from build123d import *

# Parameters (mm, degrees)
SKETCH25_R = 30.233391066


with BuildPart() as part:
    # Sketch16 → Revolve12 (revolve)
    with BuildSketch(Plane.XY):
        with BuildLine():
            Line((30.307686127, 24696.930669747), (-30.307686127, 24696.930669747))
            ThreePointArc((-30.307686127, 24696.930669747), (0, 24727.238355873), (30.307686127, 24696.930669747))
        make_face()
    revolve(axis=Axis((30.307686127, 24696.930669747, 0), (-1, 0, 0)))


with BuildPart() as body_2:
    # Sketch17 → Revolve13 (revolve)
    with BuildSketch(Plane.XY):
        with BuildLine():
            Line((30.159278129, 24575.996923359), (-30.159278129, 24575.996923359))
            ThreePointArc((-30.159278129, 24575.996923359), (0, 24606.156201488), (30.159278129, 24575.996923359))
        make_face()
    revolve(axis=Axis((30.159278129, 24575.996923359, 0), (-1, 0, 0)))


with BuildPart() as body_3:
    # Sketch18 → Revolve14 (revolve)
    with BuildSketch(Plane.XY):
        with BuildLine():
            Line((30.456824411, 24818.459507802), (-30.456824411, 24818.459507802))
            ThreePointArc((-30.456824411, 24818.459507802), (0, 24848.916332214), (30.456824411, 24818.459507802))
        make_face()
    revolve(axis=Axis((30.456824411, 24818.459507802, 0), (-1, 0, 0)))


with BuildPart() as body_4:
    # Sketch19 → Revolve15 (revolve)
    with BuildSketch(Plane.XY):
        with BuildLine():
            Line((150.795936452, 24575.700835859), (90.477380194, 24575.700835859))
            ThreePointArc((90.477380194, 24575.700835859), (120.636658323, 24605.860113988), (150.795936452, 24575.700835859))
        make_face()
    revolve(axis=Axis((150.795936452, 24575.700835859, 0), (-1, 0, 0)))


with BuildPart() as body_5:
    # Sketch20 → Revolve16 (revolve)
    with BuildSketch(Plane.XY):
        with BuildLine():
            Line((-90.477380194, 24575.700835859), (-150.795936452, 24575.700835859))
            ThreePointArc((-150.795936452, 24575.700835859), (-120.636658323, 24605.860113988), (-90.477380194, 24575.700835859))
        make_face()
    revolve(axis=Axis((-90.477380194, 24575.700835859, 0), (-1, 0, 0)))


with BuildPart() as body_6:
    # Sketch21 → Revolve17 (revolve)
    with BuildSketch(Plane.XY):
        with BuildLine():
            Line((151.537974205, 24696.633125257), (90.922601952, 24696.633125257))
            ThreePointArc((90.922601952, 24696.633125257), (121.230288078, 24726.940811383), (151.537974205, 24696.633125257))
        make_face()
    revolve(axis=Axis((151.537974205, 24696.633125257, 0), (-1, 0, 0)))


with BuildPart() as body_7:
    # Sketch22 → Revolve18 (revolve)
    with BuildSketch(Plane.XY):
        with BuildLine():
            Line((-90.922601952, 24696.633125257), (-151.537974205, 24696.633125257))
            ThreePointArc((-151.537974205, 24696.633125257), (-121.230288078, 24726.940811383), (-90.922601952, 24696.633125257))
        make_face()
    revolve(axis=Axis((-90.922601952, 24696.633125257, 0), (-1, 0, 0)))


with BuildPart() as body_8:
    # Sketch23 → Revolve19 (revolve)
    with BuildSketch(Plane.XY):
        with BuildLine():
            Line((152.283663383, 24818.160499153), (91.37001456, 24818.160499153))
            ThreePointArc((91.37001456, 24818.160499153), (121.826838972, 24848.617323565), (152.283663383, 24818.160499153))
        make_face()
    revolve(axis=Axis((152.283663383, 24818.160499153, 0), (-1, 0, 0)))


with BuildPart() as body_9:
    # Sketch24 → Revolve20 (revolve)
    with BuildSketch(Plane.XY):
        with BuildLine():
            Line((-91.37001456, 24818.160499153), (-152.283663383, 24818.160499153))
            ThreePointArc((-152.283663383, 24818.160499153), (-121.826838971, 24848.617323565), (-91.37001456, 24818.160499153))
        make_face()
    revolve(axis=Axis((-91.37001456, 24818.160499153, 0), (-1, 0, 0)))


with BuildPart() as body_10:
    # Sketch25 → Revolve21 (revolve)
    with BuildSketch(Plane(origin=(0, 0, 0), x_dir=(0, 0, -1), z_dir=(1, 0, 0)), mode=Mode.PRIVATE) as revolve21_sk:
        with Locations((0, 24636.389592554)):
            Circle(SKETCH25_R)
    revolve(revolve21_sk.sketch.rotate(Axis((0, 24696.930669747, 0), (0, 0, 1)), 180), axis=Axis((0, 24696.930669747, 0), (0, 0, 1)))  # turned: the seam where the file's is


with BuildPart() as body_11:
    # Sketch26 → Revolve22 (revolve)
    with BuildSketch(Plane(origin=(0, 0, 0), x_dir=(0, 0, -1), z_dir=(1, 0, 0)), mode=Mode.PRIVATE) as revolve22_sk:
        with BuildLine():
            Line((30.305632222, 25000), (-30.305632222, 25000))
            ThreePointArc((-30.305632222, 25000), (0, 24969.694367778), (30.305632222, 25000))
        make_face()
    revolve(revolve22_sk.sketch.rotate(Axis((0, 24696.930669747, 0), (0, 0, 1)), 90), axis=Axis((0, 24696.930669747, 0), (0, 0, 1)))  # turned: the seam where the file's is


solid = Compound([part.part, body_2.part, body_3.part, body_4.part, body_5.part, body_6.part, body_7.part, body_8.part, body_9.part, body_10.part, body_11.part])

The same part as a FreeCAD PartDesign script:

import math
import FreeCAD as App
import Part
import Sketcher
from FreeCAD import Vector
Q = App.Units.Quantity

doc = App.newDocument("Part")
body = doc.addObject("PartDesign::Body", "Body")

# Sketch on XY plane
sketch1 = doc.addObject("Sketcher::SketchObject", "Sketch")
body.addObject(sketch1)
sketch1.AttachmentSupport = (doc.XY_Plane, [""])
sketch1.MapMode = "FlatFace"
sketch1.addGeometry([
    Part.LineSegment(Vector(-30, 24697, 0), Vector(30, 24697, 0)),
    Part.ArcOfCircle(Part.Circle(Vector(0, 24697, 0), Vector(0, 0, 1), 30), math.radians(0), math.radians(180)),
], False)
sketch1.addGeometry(Part.LineSegment(Vector(30, 24697, 0), Vector(-30, 24697, 0)), True)  # axis
sketch1.addConstraint([
    Sketcher.Constraint("Coincident", 0, 1, 1, 2),
    Sketcher.Constraint("Coincident", 1, 1, 0, 2),
    Sketcher.Constraint("Horizontal", 0),
    Sketcher.Constraint("Horizontal", 2),
    Sketcher.Constraint("Coincident", 2, 1, 1, 1),
    Sketcher.Constraint("PointOnObject", 1, 3, -2),
    Sketcher.Constraint("Horizontal", 1, 3, 0, 1),
    Sketcher.Constraint("Equal", 0, 2),
    Sketcher.Constraint("Radius", 1, Q("30.307686 mm")),
    Sketcher.Constraint("DistanceY", -1, 1, 1, 3, Q("24696.93067 mm")),
])
revolution = doc.addObject("PartDesign::Revolution", "Revolution")
body.addObject(revolution)
revolution.Profile = sketch1
revolution.ReferenceAxis = (sketch1, ["Axis0"])
revolution.Angle = 360
body2 = doc.addObject("PartDesign::Body", "Body001")

# Sketch on XY plane
sketch2 = doc.addObject("Sketcher::SketchObject", "Sketch001")
body2.addObject(sketch2)
sketch2.AttachmentSupport = (doc.getObject("XY_Plane001"), [""])
sketch2.MapMode = "FlatFace"
sketch2.addGeometry([
    Part.LineSegment(Vector(-30, 24576, 0), Vector(30, 24576, 0)),
    Part.ArcOfCircle(Part.Circle(Vector(0, 24576, 0), Vector(0, 0, 1), 30), math.radians(0), math.radians(180)),
], False)
sketch2.addGeometry(Part.LineSegment(Vector(30, 24576, 0), Vector(-30, 24576, 0)), True)  # axis
sketch2.addConstraint([
    Sketcher.Constraint("Coincident", 0, 1, 1, 2),
    Sketcher.Constraint("Coincident", 1, 1, 0, 2),
    Sketcher.Constraint("Horizontal", 0),
    Sketcher.Constraint("Horizontal", 2),
    Sketcher.Constraint("Coincident", 2, 1, 1, 1),
    Sketcher.Constraint("PointOnObject", 1, 3, -2),
    Sketcher.Constraint("Horizontal", 1, 3, 0, 1),
    Sketcher.Constraint("Equal", 0, 2),
    Sketcher.Constraint("Radius", 1, Q("30.159278 mm")),
    Sketcher.Constraint("DistanceY", -1, 1, 1, 3, Q("24575.996923 mm")),
])
revolution2 = doc.addObject("PartDesign::Revolution", "Revolution001")
body2.addObject(revolution2)
revolution2.Profile = sketch2
revolution2.ReferenceAxis = (sketch2, ["Axis0"])
revolution2.Angle = 360
body3 = doc.addObject("PartDesign::Body", "Body002")

# Sketch on XY plane
sketch3 = doc.addObject("Sketcher::SketchObject", "Sketch002")
body3.addObject(sketch3)
sketch3.AttachmentSupport = (doc.getObject("XY_Plane002"), [""])
sketch3.MapMode = "FlatFace"
sketch3.addGeometry([
    Part.LineSegment(Vector(-30, 24818, 0), Vector(30, 24818, 0)),
    Part.ArcOfCircle(Part.Circle(Vector(0, 24818, 0), Vector(0, 0, 1), 30), math.radians(0), math.radians(180)),
], False)
sketch3.addGeometry(Part.LineSegment(Vector(30, 24818, 0), Vector(-30, 24818, 0)), True)  # axis
sketch3.addConstraint([
    Sketcher.Constraint("Coincident", 0, 1, 1, 2),
    Sketcher.Constraint("Coincident", 1, 1, 0, 2),
    Sketcher.Constraint("Horizontal", 0),
    Sketcher.Constraint("Horizontal", 2),
    Sketcher.Constraint("Coincident", 2, 1, 1, 1),
    Sketcher.Constraint("PointOnObject", 1, 3, -2),
    Sketcher.Constraint("Horizontal", 1, 3, 0, 1),
    Sketcher.Constraint("Equal", 0, 2),
    Sketcher.Constraint("Radius", 1, Q("30.456824 mm")),
    Sketcher.Constraint("DistanceY", -1, 1, 1, 3, Q("24818.459508 mm")),
])
revolution3 = doc.addObject("PartDesign::Revolution", "Revolution002")
body3.addObject(revolution3)
revolution3.Profile = sketch3
revolution3.ReferenceAxis = (sketch3, ["Axis0"])
revolution3.Angle = 360
body4 = doc.addObject("PartDesign::Body", "Body003")

# Sketch on XY plane
sketch4 = doc.addObject("Sketcher::SketchObject", "Sketch003")
body4.addObject(sketch4)
sketch4.AttachmentSupport = (doc.getObject("XY_Plane003"), [""])
sketch4.MapMode = "FlatFace"
sketch4.addGeometry([
    Part.LineSegment(Vector(90, 24576, 0), Vector(151, 24576, 0)),
    Part.ArcOfCircle(Part.Circle(Vector(121, 24576, 0), Vector(0, 0, 1), 30), math.radians(0), math.radians(180)),
], False)
sketch4.addGeometry(Part.LineSegment(Vector(151, 24576, 0), Vector(90, 24576, 0)), True)  # axis
sketch4.addConstraint([
    Sketcher.Constraint("Coincident", 0, 1, 1, 2),
    Sketcher.Constraint("Coincident", 1, 1, 0, 2),
    Sketcher.Constraint("Horizontal", 0),
    Sketcher.Constraint("Horizontal", 2),
    Sketcher.Constraint("Coincident", 2, 1, 1, 1),
    Sketcher.Constraint("Horizontal", 1, 3, 0, 1),
    Sketcher.Constraint("Equal", 0, 2),
    Sketcher.Constraint("Radius", 1, Q("30.159278 mm")),
    Sketcher.Constraint("DistanceX", -1, 1, 1, 3, Q("120.636658 mm")),
    Sketcher.Constraint("DistanceY", -1, 1, 1, 3, Q("24575.700836 mm")),
])
revolution4 = doc.addObject("PartDesign::Revolution", "Revolution003")
body4.addObject(revolution4)
revolution4.Profile = sketch4
revolution4.ReferenceAxis = (sketch4, ["Axis0"])
revolution4.Angle = 360
body5 = doc.addObject("PartDesign::Body", "Body004")

# Sketch on XY plane
sketch5 = doc.addObject("Sketcher::SketchObject", "Sketch004")
body5.addObject(sketch5)
sketch5.AttachmentSupport = (doc.getObject("XY_Plane004"), [""])
sketch5.MapMode = "FlatFace"
sketch5.addGeometry([
    Part.LineSegment(Vector(-151, 24576, 0), Vector(-90, 24576, 0)),
    Part.ArcOfCircle(Part.Circle(Vector(-121, 24576, 0), Vector(0, 0, 1), 30), math.radians(0), math.radians(180)),
], False)
sketch5.addGeometry(Part.LineSegment(Vector(-90, 24576, 0), Vector(-151, 24576, 0)), True)  # axis
sketch5.addConstraint([
    Sketcher.Constraint("Coincident", 0, 1, 1, 2),
    Sketcher.Constraint("Coincident", 1, 1, 0, 2),
    Sketcher.Constraint("Horizontal", 0),
    Sketcher.Constraint("Horizontal", 2),
    Sketcher.Constraint("Coincident", 2, 1, 1, 1),
    Sketcher.Constraint("Horizontal", 1, 3, 0, 1),
    Sketcher.Constraint("Equal", 0, 2),
    Sketcher.Constraint("Radius", 1, Q("30.159278 mm")),
    Sketcher.Constraint("DistanceX", 1, 3, -1, 1, Q("120.636658 mm")),
    Sketcher.Constraint("DistanceY", -1, 1, 1, 3, Q("24575.700836 mm")),
])
revolution5 = doc.addObject("PartDesign::Revolution", "Revolution004")
body5.addObject(revolution5)
revolution5.Profile = sketch5
revolution5.ReferenceAxis = (sketch5, ["Axis0"])
revolution5.Angle = 360
body6 = doc.addObject("PartDesign::Body", "Body005")

# Sketch on XY plane
sketch6 = doc.addObject("Sketcher::SketchObject", "Sketch005")
body6.addObject(sketch6)
sketch6.AttachmentSupport = (doc.getObject("XY_Plane005"), [""])
sketch6.MapMode = "FlatFace"
sketch6.addGeometry([
    Part.LineSegment(Vector(91, 24697, 0), Vector(152, 24697, 0)),
    Part.ArcOfCircle(Part.Circle(Vector(121, 24697, 0), Vector(0, 0, 1), 30), math.radians(0), math.radians(180)),
], False)
sketch6.addGeometry(Part.LineSegment(Vector(152, 24697, 0), Vector(91, 24697, 0)), True)  # axis
sketch6.addConstraint([
    Sketcher.Constraint("Coincident", 0, 1, 1, 2),
    Sketcher.Constraint("Coincident", 1, 1, 0, 2),
    Sketcher.Constraint("Horizontal", 0),
    Sketcher.Constraint("Horizontal", 2),
    Sketcher.Constraint("Coincident", 2, 1, 1, 1),
    Sketcher.Constraint("Horizontal", 1, 3, 0, 1),
    Sketcher.Constraint("Equal", 0, 2),
    Sketcher.Constraint("Radius", 1, Q("30.307686 mm")),
    Sketcher.Constraint("DistanceX", -1, 1, 0, 1, Q("90.922602 mm")),
    Sketcher.Constraint("DistanceY", -1, 1, 1, 3, Q("24696.633125 mm")),
])
revolution6 = doc.addObject("PartDesign::Revolution", "Revolution005")
body6.addObject(revolution6)
revolution6.Profile = sketch6
revolution6.ReferenceAxis = (sketch6, ["Axis0"])
revolution6.Angle = 360
body7 = doc.addObject("PartDesign::Body", "Body006")

# Sketch on XY plane
sketch7 = doc.addObject("Sketcher::SketchObject", "Sketch006")
body7.addObject(sketch7)
sketch7.AttachmentSupport = (doc.getObject("XY_Plane006"), [""])
sketch7.MapMode = "FlatFace"
sketch7.addGeometry([
    Part.LineSegment(Vector(-152, 24697, 0), Vector(-91, 24697, 0)),
    Part.ArcOfCircle(Part.Circle(Vector(-121, 24697, 0), Vector(0, 0, 1), 30), math.radians(0), math.radians(180)),
], False)
sketch7.addGeometry(Part.LineSegment(Vector(-91, 24697, 0), Vector(-152, 24697, 0)), True)  # axis
sketch7.addConstraint([
    Sketcher.Constraint("Coincident", 0, 1, 1, 2),
    Sketcher.Constraint("Coincident", 1, 1, 0, 2),
    Sketcher.Constraint("Horizontal", 0),
    Sketcher.Constraint("Horizontal", 2),
    Sketcher.Constraint("Coincident", 2, 1, 1, 1),
    Sketcher.Constraint("Horizontal", 1, 3, 0, 1),
    Sketcher.Constraint("Equal", 0, 2),
    Sketcher.Constraint("Radius", 1, Q("30.307686 mm")),
    Sketcher.Constraint("DistanceX", 1, 1, -1, 1, Q("90.922602 mm")),
    Sketcher.Constraint("DistanceY", -1, 1, 1, 3, Q("24696.633125 mm")),
])
revolution7 = doc.addObject("PartDesign::Revolution", "Revolution006")
body7.addObject(revolution7)
revolution7.Profile = sketch7
revolution7.ReferenceAxis = (sketch7, ["Axis0"])
revolution7.Angle = 360
body8 = doc.addObject("PartDesign::Body", "Body007")

# Sketch on XY plane
sketch8 = doc.addObject("Sketcher::SketchObject", "Sketch007")
body8.addObject(sketch8)
sketch8.AttachmentSupport = (doc.getObject("XY_Plane007"), [""])
sketch8.MapMode = "FlatFace"
sketch8.addGeometry([
    Part.LineSegment(Vector(91, 24818, 0), Vector(152, 24818, 0)),
    Part.ArcOfCircle(Part.Circle(Vector(122, 24818, 0), Vector(0, 0, 1), 30), math.radians(0), math.radians(180)),
], False)
sketch8.addGeometry(Part.LineSegment(Vector(152, 24818, 0), Vector(91, 24818, 0)), True)  # axis
sketch8.addConstraint([
    Sketcher.Constraint("Coincident", 0, 1, 1, 2),
    Sketcher.Constraint("Coincident", 1, 1, 0, 2),
    Sketcher.Constraint("Horizontal", 0),
    Sketcher.Constraint("Horizontal", 2),
    Sketcher.Constraint("Coincident", 2, 1, 1, 1),
    Sketcher.Constraint("Horizontal", 1, 3, 0, 1),
    Sketcher.Constraint("Equal", 0, 2),
    Sketcher.Constraint("Radius", 1, Q("30.456824 mm")),
    Sketcher.Constraint("DistanceY", -1, 1, 1, 3, Q("24818.160499 mm")),
    Sketcher.Constraint("DistanceX", -1, 1, 1, 3, Q("121.826839 mm")),
])
revolution8 = doc.addObject("PartDesign::Revolution", "Revolution007")
body8.addObject(revolution8)
revolution8.Profile = sketch8
revolution8.ReferenceAxis = (sketch8, ["Axis0"])
revolution8.Angle = 360
body9 = doc.addObject("PartDesign::Body", "Body008")

# Sketch on XY plane
sketch9 = doc.addObject("Sketcher::SketchObject", "Sketch008")
body9.addObject(sketch9)
sketch9.AttachmentSupport = (doc.getObject("XY_Plane008"), [""])
sketch9.MapMode = "FlatFace"
sketch9.addGeometry([
    Part.LineSegment(Vector(-152, 24818, 0), Vector(-91, 24818, 0)),
    Part.ArcOfCircle(Part.Circle(Vector(-122, 24818, 0), Vector(0, 0, 1), 30), math.radians(0), math.radians(180)),
], False)
sketch9.addGeometry(Part.LineSegment(Vector(-91, 24818, 0), Vector(-152, 24818, 0)), True)  # axis
sketch9.addConstraint([
    Sketcher.Constraint("Coincident", 0, 1, 1, 2),
    Sketcher.Constraint("Coincident", 1, 1, 0, 2),
    Sketcher.Constraint("Horizontal", 0),
    Sketcher.Constraint("Horizontal", 2),
    Sketcher.Constraint("Coincident", 2, 1, 1, 1),
    Sketcher.Constraint("Horizontal", 1, 3, 0, 1),
    Sketcher.Constraint("Equal", 0, 2),
    Sketcher.Constraint("Radius", 1, Q("30.456824 mm")),
    Sketcher.Constraint("DistanceY", -1, 1, 1, 3, Q("24818.160499 mm")),
    Sketcher.Constraint("DistanceX", 1, 3, -1, 1, Q("121.826839 mm")),
])
revolution9 = doc.addObject("PartDesign::Revolution", "Revolution008")
body9.addObject(revolution9)
revolution9.Profile = sketch9
revolution9.ReferenceAxis = (sketch9, ["Axis0"])
revolution9.Angle = 360
body10 = doc.addObject("PartDesign::Body", "Body009")

# Sketch on YZ plane
sketch10 = doc.addObject("Sketcher::SketchObject", "Sketch009")
body10.addObject(sketch10)
sketch10.AttachmentSupport = (doc.getObject("YZ_Plane009"), [""])
sketch10.MapMode = "FlatFace"
sketch10.addGeometry(Part.Circle(Vector(24636, 0, 0), Vector(0, 0, 1), 30), False)
sketch10.addGeometry(Part.LineSegment(Vector(24697, 0, 0), Vector(24697, 10, 0)), True)  # axis
sketch10.addConstraint([
    Sketcher.Constraint("Vertical", 1),
    Sketcher.Constraint("PointOnObject", 0, 3, -1),
    Sketcher.Constraint("PointOnObject", 1, 1, -1),
    Sketcher.Constraint("DistanceY", 1, 1, 1, 2, Q("10 mm")),
    Sketcher.Constraint("Diameter", 0, Q("60.466782 mm")),
    Sketcher.Constraint("DistanceX", -1, 1, 1, 1, Q("24696.93067 mm")),
    Sketcher.Constraint("DistanceX", -1, 1, 0, 3, Q("24636.389593 mm")),
])
revolution10 = doc.addObject("PartDesign::Revolution", "Revolution009")
body10.addObject(revolution10)
revolution10.Profile = sketch10
revolution10.ReferenceAxis = (sketch10, ["Axis0"])
revolution10.Angle = 360
body11 = doc.addObject("PartDesign::Body", "Body010")

# Sketch on YZ plane
sketch11 = doc.addObject("Sketcher::SketchObject", "Sketch010")
body11.addObject(sketch11)
sketch11.AttachmentSupport = (doc.getObject("YZ_Plane010"), [""])
sketch11.MapMode = "FlatFace"
sketch11.addGeometry([
    Part.LineSegment(Vector(25000, -30, 0), Vector(25000, 30, 0)),
    Part.ArcOfCircle(Part.Circle(Vector(25000, 0, 0), Vector(0, 0, 1), 30), math.radians(90), math.radians(270)),
], False)
sketch11.addGeometry(Part.LineSegment(Vector(24697, -30, 0), Vector(24697, 30, 0)), True)  # axis
sketch11.addConstraint([
    Sketcher.Constraint("Coincident", 0, 1, 1, 2),
    Sketcher.Constraint("Coincident", 1, 1, 0, 2),
    Sketcher.Constraint("Vertical", 0),
    Sketcher.Constraint("Vertical", 2),
    Sketcher.Constraint("PointOnObject", 1, 3, -1),
    Sketcher.Constraint("Horizontal", 0, 1, 2, 1),
    Sketcher.Constraint("Horizontal", 1, 1, 2, 2),
    Sketcher.Constraint("Vertical", 1, 3, 0, 1),
    Sketcher.Constraint("DistanceX", -1, 1, 1, 3, Q("25000 mm")),
    Sketcher.Constraint("Radius", 1, Q("30.305632 mm")),
    Sketcher.Constraint("DistanceX", -1, 1, 2, 1, Q("24696.93067 mm")),
])
revolution11 = doc.addObject("PartDesign::Revolution", "Revolution010")
body11.addObject(revolution11)
revolution11.Profile = sketch11
revolution11.ReferenceAxis = (sketch11, ["Axis0"])
revolution11.Angle = 360

doc.recompute()
